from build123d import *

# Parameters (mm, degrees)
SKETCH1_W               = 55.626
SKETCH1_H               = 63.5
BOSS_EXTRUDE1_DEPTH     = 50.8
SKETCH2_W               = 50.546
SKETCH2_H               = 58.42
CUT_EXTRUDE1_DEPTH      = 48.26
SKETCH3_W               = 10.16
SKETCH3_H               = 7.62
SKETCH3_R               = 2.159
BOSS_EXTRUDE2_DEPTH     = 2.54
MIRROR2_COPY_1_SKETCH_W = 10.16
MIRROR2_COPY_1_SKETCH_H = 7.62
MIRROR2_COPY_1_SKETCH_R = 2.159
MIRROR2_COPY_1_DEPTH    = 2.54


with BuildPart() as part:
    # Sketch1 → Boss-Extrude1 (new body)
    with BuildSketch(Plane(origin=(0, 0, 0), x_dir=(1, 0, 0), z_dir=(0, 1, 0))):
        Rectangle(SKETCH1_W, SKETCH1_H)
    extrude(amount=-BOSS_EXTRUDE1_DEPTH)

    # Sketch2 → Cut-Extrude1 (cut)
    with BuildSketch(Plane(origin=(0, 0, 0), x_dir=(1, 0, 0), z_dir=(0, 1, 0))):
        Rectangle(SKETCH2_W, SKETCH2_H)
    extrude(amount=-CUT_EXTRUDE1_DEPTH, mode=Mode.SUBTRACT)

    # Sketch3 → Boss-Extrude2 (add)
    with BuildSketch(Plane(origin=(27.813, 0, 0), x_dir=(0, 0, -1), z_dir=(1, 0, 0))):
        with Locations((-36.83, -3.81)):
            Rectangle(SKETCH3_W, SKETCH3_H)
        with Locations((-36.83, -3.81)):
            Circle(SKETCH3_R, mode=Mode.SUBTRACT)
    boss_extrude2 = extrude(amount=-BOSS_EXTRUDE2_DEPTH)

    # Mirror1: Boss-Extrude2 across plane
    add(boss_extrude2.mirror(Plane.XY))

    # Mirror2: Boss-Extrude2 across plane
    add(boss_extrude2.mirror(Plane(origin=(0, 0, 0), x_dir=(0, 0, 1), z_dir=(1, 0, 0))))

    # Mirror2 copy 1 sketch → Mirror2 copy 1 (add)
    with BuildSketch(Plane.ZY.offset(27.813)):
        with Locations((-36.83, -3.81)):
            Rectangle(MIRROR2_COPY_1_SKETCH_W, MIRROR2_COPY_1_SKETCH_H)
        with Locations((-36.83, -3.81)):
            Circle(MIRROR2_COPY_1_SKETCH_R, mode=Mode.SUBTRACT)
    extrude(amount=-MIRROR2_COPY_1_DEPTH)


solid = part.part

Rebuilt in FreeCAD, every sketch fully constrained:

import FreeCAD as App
import Part
import Sketcher

V = App.Vector
Q = App.Units.Quantity


def add_polygon(sketch, points):
    """Adds a closed chain of lines whose ends are joined by coincident constraints."""
    first, n = sketch.GeometryCount, len(points)
    for a, b in zip(points, points[1:] + points[:1]):
        sketch.addGeometry(Part.LineSegment(App.Vector(*a, 0), App.Vector(*b, 0)), False)
    for i in range(n):
        sketch.addConstraint(Sketcher.Constraint("Coincident", first + i, 2, first + (i + 1) % n, 1))

doc = App.newDocument("Part")
params = doc.addObject("Spreadsheet::Sheet", "Params")
for row, (alias, value) in enumerate([
    ("sketch1_height", "2.5 in"),
    ("sketch1_width", "2.19 in"),
    ("pad1_length", "2 in"),
    ("sketch2_height", "2.3 in"),
    ("sketch2_width", "1.99 in"),
    ("pocket1_length", "1.9 in"),
    ("sketch3_diameter", "0.17 in"),
    ("sketch3_width", "0.3 in"),
    ("sketch3_height", "0.4 in"),
    ("pad2_length", "0.1 in"),
    ("sketch4_diameter", "0.17 in"),
    ("sketch4_width", "0.3 in"),
    ("sketch4_height", "0.4 in"),
    ("pad3_length", "0.1 in"),
], start=1):
    params.set(f"A{row}", alias)
    params.set(f"B{row}", "=" + value)
    params.setAlias(f"B{row}", alias)

body = doc.addObject("PartDesign::Body", "Body")

sketch1 = body.newObject("Sketcher::SketchObject", "Sketch")
sketch1.AttachmentSupport = (doc.getObject("XZ_Plane"), [""])
sketch1.MapMode = "FlatFace"
add_polygon(sketch1, [(-28, -32), (-28, 32), (28, 32), (28, -32)])
sketch1.addConstraint([
    Sketcher.Constraint("Vertical", 0),
    Sketcher.Constraint("Horizontal", 1),
    Sketcher.Constraint("Vertical", 2),
    Sketcher.Constraint("Horizontal", 3),
    Sketcher.Constraint("Symmetric", 0, 2, 2, 2, -1, 1),
    Sketcher.Constraint("DistanceY", 0, 1, 0, 2, Q("2.5 in")),
    Sketcher.Constraint("DistanceX", 1, 1, 1, 2, Q("2.19 in")),
])
sketch1.setExpression("Constraints[9]", "Params.sketch1_height")
sketch1.setExpression("Constraints[10]", "Params.sketch1_width")
pad1 = body.newObject("PartDesign::Pad", "Pad")
pad1.Profile = sketch1
pad1.setExpression("Length", "Params.pad1_length")

sketch2 = body.newObject("Sketcher::SketchObject", "Sketch001")
sketch2.AttachmentSupport = (doc.getObject("XZ_Plane"), [""])
sketch2.MapMode = "FlatFace"
add_polygon(sketch2, [(-25, -29), (-25, 29), (25, 29), (25, -29)])
sketch2.addConstraint([
    Sketcher.Constraint("Vertical", 0),
    Sketcher.Constraint("Horizontal", 1),
    Sketcher.Constraint("Vertical", 2),
    Sketcher.Constraint("Horizontal", 3),
    Sketcher.Constraint("Symmetric", 0, 2, 2, 2, -1, 1),
    Sketcher.Constraint("DistanceY", 0, 1, 0, 2, Q("2.3 in")),
    Sketcher.Constraint("DistanceX", 1, 1, 1, 2, Q("1.99 in")),
])
sketch2.setExpression("Constraints[9]", "Params.sketch2_height")
sketch2.setExpression("Constraints[10]", "Params.sketch2_width")
pocket1 = body.newObject("PartDesign::Pocket", "Pocket")
pocket1.Profile = sketch2
pocket1.setExpression("Length", "Params.pocket1_length")
pocket1.Reversed = True

sketch3 = body.newObject("Sketcher::SketchObject", "Sketch002")
sketch3.AttachmentSupport = (doc.getObject("YZ_Plane"), [""])
sketch3.MapMode = "FlatFace"
sketch3.AttachmentOffset = App.Placement(V(0, 0, 1.095 * 25.4), App.Rotation())
add_polygon(sketch3, [(0, 41.9), (-7.6, 41.9), (-7.6, 31.8), (0, 31.8)])
sketch3.addGeometry(Part.Circle(V(-3.8, 36.8, 0), V(0, 0, 1), 2.2), False)
sketch3.addConstraint([
    Sketcher.Constraint("Horizontal", 0),
    Sketcher.Constraint("Vertical", 1),
    Sketcher.Constraint("Horizontal", 2),
    Sketcher.Constraint("Vertical", 3),
    Sketcher.Constraint("PointOnObject", 2, 2, -2),
    Sketcher.Constraint("Diameter", 4, Q("0.17 in")),
    Sketcher.Constraint("DistanceX", 0, 2, 0, 1, Q("0.3 in")),
    Sketcher.Constraint("DistanceY", 1, 2, 1, 1, Q("0.4 in")),
    Sketcher.Constraint("DistanceY", 4, 3, 0, 2, Q("0.2 in")),
    Sketcher.Constraint("DistanceX", 4, 3, -1, 1, Q("0.15 in")),
    Sketcher.Constraint("DistanceY", -1, 1, 4, 3, Q("1.45 in")),
])
sketch3.setExpression("Constraints[9]", "Params.sketch3_diameter")
sketch3.setExpression("Constraints[10]", "Params.sketch3_width")
sketch3.setExpression("Constraints[11]", "Params.sketch3_height")
pad2 = body.newObject("PartDesign::Pad", "Pad001")
pad2.Profile = sketch3
pad2.setExpression("Length", "Params.pad2_length")
pad2.Reversed = True
doc.recompute()

mirrored = body.newObject("PartDesign::Mirrored", "Mirrored")
mirrored.Originals = [pad2]
mirrored.MirrorPlane = (doc.getObject("XY_Plane"), [""])
body.Tip = mirrored
doc.recompute()

mirrored2 = body.newObject("PartDesign::Mirrored", "Mirrored001")
mirrored2.Originals = [pad2]
mirrored2.MirrorPlane = (doc.getObject("YZ_Plane"), [""])
body.Tip = mirrored2

sketch4 = body.newObject("Sketcher::SketchObject", "Sketch003")
sketch4.AttachmentSupport = (doc.getObject("YZ_Plane"), [""])
sketch4.MapMode = "FlatFace"
sketch4.AttachmentOffset = App.Placement(V(0, 0, -1.095 * 25.4), App.Rotation())
add_polygon(sketch4, [(0, -41.9), (-7.6, -41.9), (-7.6, -31.8), (0, -31.8)])
sketch4.addGeometry(Part.Circle(V(-3.8, -36.8, 0), V(0, 0, 1), 2.2), False)
sketch4.addConstraint([
    Sketcher.Constraint("Horizontal", 0),
    Sketcher.Constraint("Vertical", 1),
    Sketcher.Constraint("Horizontal", 2),
    Sketcher.Constraint("Vertical", 3),
    Sketcher.Constraint("PointOnObject", 2, 2, -2),
    Sketcher.Constraint("Diameter", 4, Q("0.17 in")),
    Sketcher.Constraint("DistanceX", 0, 2, 0, 1, Q("0.3 in")),
    Sketcher.Constraint("DistanceY", 1, 1, 1, 2, Q("0.4 in")),
    Sketcher.Constraint("DistanceY", 0, 2, 4, 3, Q("0.2 in")),
    Sketcher.Constraint("DistanceX", 4, 3, -1, 1, Q("0.15 in")),
    Sketcher.Constraint("DistanceY", 4, 3, -1, 1, Q("1.45 in")),
])
sketch4.setExpression("Constraints[9]", "Params.sketch4_diameter")
sketch4.setExpression("Constraints[10]", "Params.sketch4_width")
sketch4.setExpression("Constraints[11]", "Params.sketch4_height")
pad3 = body.newObject("PartDesign::Pad", "Pad002")
pad3.Profile = sketch4
pad3.setExpression("Length", "Params.pad3_length")

doc.recompute()
